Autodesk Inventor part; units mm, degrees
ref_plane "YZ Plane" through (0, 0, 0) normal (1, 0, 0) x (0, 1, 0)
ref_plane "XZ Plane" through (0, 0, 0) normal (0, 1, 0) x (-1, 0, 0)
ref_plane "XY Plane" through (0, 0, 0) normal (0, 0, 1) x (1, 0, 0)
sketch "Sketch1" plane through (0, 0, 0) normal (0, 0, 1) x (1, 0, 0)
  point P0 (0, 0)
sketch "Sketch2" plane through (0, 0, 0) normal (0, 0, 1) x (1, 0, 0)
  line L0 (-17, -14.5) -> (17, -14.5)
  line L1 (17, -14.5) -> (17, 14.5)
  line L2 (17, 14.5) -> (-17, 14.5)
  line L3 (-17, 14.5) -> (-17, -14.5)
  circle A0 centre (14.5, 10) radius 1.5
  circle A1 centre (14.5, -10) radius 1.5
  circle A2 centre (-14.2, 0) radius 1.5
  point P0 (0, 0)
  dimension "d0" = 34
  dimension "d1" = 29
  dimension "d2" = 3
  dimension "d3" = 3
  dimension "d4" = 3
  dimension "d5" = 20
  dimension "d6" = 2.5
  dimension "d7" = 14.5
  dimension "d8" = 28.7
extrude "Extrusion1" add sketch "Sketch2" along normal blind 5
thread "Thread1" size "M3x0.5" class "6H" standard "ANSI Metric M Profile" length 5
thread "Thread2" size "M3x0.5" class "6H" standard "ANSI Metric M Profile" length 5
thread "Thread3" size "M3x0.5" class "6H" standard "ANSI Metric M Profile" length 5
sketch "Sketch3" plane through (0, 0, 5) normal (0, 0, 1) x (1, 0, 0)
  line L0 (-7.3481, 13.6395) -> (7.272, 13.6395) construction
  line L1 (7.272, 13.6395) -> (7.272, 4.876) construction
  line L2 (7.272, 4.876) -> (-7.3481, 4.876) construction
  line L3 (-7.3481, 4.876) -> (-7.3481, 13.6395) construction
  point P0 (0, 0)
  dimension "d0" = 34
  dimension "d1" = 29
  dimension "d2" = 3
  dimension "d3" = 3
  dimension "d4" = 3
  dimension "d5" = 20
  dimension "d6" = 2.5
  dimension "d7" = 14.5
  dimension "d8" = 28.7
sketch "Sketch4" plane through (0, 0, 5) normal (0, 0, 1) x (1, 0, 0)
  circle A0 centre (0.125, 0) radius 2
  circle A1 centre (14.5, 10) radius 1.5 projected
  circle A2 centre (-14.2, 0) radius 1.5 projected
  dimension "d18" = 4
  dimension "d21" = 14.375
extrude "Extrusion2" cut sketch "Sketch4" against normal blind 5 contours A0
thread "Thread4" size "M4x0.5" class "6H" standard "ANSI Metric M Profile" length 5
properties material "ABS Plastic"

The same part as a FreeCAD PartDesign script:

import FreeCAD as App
import Part
import Sketcher


def add_polygon(sketch, points):
    """Adds a closed chain of lines whose ends are joined by coincident constraints."""
    first, n = sketch.GeometryCount, len(points)
    for a, b in zip(points, points[1:] + points[:1]):
        sketch.addGeometry(Part.LineSegment(App.Vector(*a, 0), App.Vector(*b, 0)), False)
    for i in range(n):
        sketch.addConstraint(Sketcher.Constraint("Coincident", first + i, 2, first + (i + 1) % n, 1))

doc = App.newDocument("Part")
body = doc.addObject("PartDesign::Body", "Body")

# Sketch on XY plane
sketch1 = body.newObject("Sketcher::SketchObject", "Sketch")
sketch1.AttachmentSupport = (doc.getObject("XY_Plane"), [""])
sketch1.MapMode = "FlatFace"
add_polygon(sketch1, [(-17, 14.5), (-17, -14.5), (17, -14.5), (17, 14.5)])  # lines 0-3
sketch1.addGeometry(Part.Circle(App.Vector(14.5, -10, 0), App.Vector(0, 0, 1), 1.5), False)  # 4
sketch1.addGeometry(Part.Circle(App.Vector(-14.2, 0, 0), App.Vector(0, 0, 1), 1.5), False)  # 5
sketch1.addGeometry(Part.Circle(App.Vector(14.5, 10, 0), App.Vector(0, 0, 1), 1.5), False)  # 6
sketch1.addConstraint([
    Sketcher.Constraint("Vertical", 0),
    Sketcher.Constraint("Horizontal", 1),
    Sketcher.Constraint("Vertical", 2),
    Sketcher.Constraint("Horizontal", 3),
    Sketcher.Constraint("Equal", 4, 5),
    Sketcher.Constraint("Equal", 5, 6),
    Sketcher.Constraint("Symmetric", 0, 2, 2, 2, -1, 1),
    Sketcher.Constraint("Symmetric", 4, 3, 6, 3, -1),
    Sketcher.Constraint("PointOnObject", 5, 3, -1),
    Sketcher.Constraint("Diameter", 4, 3.0),
    Sketcher.Constraint("DistanceX", 1, 1, 1, 2, 34.0),
    Sketcher.Constraint("DistanceY", 0, 2, 0, 1, 29.0),
    Sketcher.Constraint("DistanceY", 4, 3, 6, 3, 20.0),
    Sketcher.Constraint("DistanceX", -1, 1, 4, 3, 14.5),
    Sketcher.Constraint("DistanceX", 5, 3, 4, 3, 28.7),
])
pad1 = body.newObject("PartDesign::Pad", "Pad")
pad1.Profile = sketch1
pad1.Length = 5

# Sketch on XY plane
sketch2 = body.newObject("Sketcher::SketchObject", "Sketch001")
sketch2.AttachmentSupport = (doc.getObject("XY_Plane"), [""])
sketch2.MapMode = "FlatFace"
sketch2.AttachmentOffset = App.Placement(App.Vector(0, 0, 5), App.Rotation())
sketch2.addGeometry(Part.Circle(App.Vector(0.1, 0, 0), App.Vector(0, 0, 1), 2), False)
sketch2.addConstraint([
    Sketcher.Constraint("PointOnObject", 0, 3, -1),
    Sketcher.Constraint("Diameter", 0, 4.0),
    Sketcher.Constraint("DistanceX", -1, 1, 0, 3, 0.125),
])
pocket1 = body.newObject("PartDesign::Pocket", "Pocket")
pocket1.Profile = sketch2
pocket1.Length = 5

doc.recompute()
